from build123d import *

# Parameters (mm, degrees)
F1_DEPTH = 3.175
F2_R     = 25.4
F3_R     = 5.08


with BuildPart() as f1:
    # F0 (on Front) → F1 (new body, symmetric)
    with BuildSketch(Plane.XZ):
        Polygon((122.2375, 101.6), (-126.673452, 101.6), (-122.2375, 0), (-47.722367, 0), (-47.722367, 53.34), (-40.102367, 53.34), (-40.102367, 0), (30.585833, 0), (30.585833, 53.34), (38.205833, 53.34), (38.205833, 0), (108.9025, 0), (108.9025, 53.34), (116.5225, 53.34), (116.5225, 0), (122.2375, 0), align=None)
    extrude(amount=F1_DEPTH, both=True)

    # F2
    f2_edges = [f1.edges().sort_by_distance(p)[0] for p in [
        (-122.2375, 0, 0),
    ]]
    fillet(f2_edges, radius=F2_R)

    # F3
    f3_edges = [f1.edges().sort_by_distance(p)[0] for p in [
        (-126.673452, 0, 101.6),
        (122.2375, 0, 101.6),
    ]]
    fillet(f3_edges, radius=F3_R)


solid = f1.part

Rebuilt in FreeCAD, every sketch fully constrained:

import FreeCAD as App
import Part
import Sketcher
Q = App.Units.Quantity


def edges_at(feature, points):
    """Names of the edges that pass closest to the given points."""
    edges = feature.Shape.Edges
    near = lambda p: min(range(len(edges)), key=lambda i: edges[i].distToShape(Part.Vertex(*p))[0])
    return sorted({f"Edge{near(p) + 1}" for p in points})


def add_polygon(sketch, points):
    """Adds a closed chain of lines whose ends are joined by coincident constraints."""
    first, n = sketch.GeometryCount, len(points)
    for a, b in zip(points, points[1:] + points[:1]):
        sketch.addGeometry(Part.LineSegment(App.Vector(*a, 0), App.Vector(*b, 0)), False)
    for i in range(n):
        sketch.addConstraint(Sketcher.Constraint("Coincident", first + i, 2, first + (i + 1) % n, 1))

doc = App.newDocument("Part")
params = doc.addObject("Spreadsheet::Sheet", "Params")
for row, (alias, value) in enumerate([
    ("sketch1_height", "4 in"),
    ("sketch1_width", "0.3 in"),
    ("sketch1_height2", "2.1 in"),
    ("sketch1_width2", "2.783 in"),
    ("sketch1_width3", "0.225 in"),
    ("pad1_length", "0.25 in"),
    ("fillet_radius", "1 in"),
    ("fillet2_radius", "0.2 in"),
], start=1):
    params.set(f"A{row}", alias)
    params.set(f"B{row}", "=" + value)
    params.setAlias(f"B{row}", alias)

body = doc.addObject("PartDesign::Body", "Body")

sketch1 = doc.addObject("Sketcher::SketchObject", "Sketch")
body.addObject(sketch1)
sketch1.AttachmentSupport = (doc.XZ_Plane, [""])
sketch1.MapMode = "FlatFace"
add_polygon(sketch1, [(122, 102), (-127, 102), (-122, 0), (-48, 0), (-48, 53), (-40, 53), (-40, 0), (31, 0), (31, 53), (38, 53), (38, 0), (109, 0), (109, 53), (117, 53), (117, 0), (122, 0)])
sketch1.addConstraint(Sketcher.Constraint("Horizontal", 0))
sketch1.addConstraint(Sketcher.Constraint("Horizontal", 2))
sketch1.addConstraint(Sketcher.Constraint("Vertical", 3))
sketch1.addConstraint(Sketcher.Constraint("Horizontal", 4))
sketch1.addConstraint(Sketcher.Constraint("Vertical", 5))
sketch1.addConstraint(Sketcher.Constraint("Horizontal", 6))
sketch1.addConstraint(Sketcher.Constraint("Vertical", 7))
sketch1.addConstraint(Sketcher.Constraint("Horizontal", 8))
sketch1.addConstraint(Sketcher.Constraint("Vertical", 9))
sketch1.addConstraint(Sketcher.Constraint("Horizontal", 10))
sketch1.addConstraint(Sketcher.Constraint("Vertical", 11))
sketch1.addConstraint(Sketcher.Constraint("Horizontal", 12))
sketch1.addConstraint(Sketcher.Constraint("Vertical", 13))
sketch1.addConstraint(Sketcher.Constraint("Horizontal", 14))
sketch1.addConstraint(Sketcher.Constraint("Vertical", 15))
sketch1.addConstraint(Sketcher.Constraint("Symmetric", 1, 2, 14, 2, -1, 1))
sketch1.addConstraint(Sketcher.Constraint("PointOnObject", 1, 2, -1))
sketch1.addConstraint(Sketcher.Constraint("PointOnObject", 5, 2, -1))
sketch1.addConstraint(Sketcher.Constraint("PointOnObject", 9, 2, -1))
sketch1.addConstraint(Sketcher.Constraint("Horizontal", 4, 2, 7, 2))
sketch1.addConstraint(Sketcher.Constraint("Horizontal", 8, 2, 11, 2))
sketch1.addConstraint(Sketcher.Constraint("Equal", 4, 8))
sketch1.addConstraint(Sketcher.Constraint("Equal", 8, 12))
sketch1.addConstraint(Sketcher.Constraint("DistanceY", 15, 1, 15, 2, Q("4 in")))
sketch1.addConstraint(Sketcher.Constraint("DistanceX", 4, 1, 4, 2, Q("0.3 in")))
sketch1.addConstraint(Sketcher.Constraint("DistanceY", 3, 1, 3, 2, Q("2.1 in")))
sketch1.addConstraint(Sketcher.Constraint("Angle", 1, Q("-87.5 deg")))
sketch1.addConstraint(Sketcher.Constraint("DistanceX", 6, 1, 6, 2, Q("2.783 in")))
sketch1.addConstraint(Sketcher.Constraint("DistanceX", 14, 1, 14, 2, Q("0.225 in")))
sketch1.addConstraint(Sketcher.Constraint("DistanceX", 1, 2, -1, 1, Q("4.8125 in")))
sketch1.addConstraint(Sketcher.Constraint("DistanceX", 2, 1, 2, 2, 74.515133))
sketch1.setExpression("Constraints[39]", "Params.sketch1_height")
sketch1.setExpression("Constraints[40]", "Params.sketch1_width")
sketch1.setExpression("Constraints[41]", "Params.sketch1_height2")
sketch1.setExpression("Constraints[43]", "Params.sketch1_width2")
sketch1.setExpression("Constraints[44]", "Params.sketch1_width3")
pad1 = doc.addObject("PartDesign::Pad", "Pad")
body.addObject(pad1)
pad1.Profile = sketch1
pad1.setExpression("Length", "Params.pad1_length")
pad1.Midplane = True
doc.recompute()

fillet = doc.addObject("PartDesign::Fillet", "Fillet")
body.addObject(fillet)
fillet.Base = (pad1, edges_at(pad1, [(-122.237, 0, 0)]))
fillet.setExpression("Radius", "Params.fillet_radius")
doc.recompute()

fillet2 = doc.addObject("PartDesign::Fillet", "Fillet001")
body.addObject(fillet2)
fillet2.Base = (fillet, edges_at(fillet, [(-126.673, 0, 101.6), (122.237, 0, 101.6)]))
fillet2.setExpression("Radius", "Params.fillet2_radius")

doc.recompute()
